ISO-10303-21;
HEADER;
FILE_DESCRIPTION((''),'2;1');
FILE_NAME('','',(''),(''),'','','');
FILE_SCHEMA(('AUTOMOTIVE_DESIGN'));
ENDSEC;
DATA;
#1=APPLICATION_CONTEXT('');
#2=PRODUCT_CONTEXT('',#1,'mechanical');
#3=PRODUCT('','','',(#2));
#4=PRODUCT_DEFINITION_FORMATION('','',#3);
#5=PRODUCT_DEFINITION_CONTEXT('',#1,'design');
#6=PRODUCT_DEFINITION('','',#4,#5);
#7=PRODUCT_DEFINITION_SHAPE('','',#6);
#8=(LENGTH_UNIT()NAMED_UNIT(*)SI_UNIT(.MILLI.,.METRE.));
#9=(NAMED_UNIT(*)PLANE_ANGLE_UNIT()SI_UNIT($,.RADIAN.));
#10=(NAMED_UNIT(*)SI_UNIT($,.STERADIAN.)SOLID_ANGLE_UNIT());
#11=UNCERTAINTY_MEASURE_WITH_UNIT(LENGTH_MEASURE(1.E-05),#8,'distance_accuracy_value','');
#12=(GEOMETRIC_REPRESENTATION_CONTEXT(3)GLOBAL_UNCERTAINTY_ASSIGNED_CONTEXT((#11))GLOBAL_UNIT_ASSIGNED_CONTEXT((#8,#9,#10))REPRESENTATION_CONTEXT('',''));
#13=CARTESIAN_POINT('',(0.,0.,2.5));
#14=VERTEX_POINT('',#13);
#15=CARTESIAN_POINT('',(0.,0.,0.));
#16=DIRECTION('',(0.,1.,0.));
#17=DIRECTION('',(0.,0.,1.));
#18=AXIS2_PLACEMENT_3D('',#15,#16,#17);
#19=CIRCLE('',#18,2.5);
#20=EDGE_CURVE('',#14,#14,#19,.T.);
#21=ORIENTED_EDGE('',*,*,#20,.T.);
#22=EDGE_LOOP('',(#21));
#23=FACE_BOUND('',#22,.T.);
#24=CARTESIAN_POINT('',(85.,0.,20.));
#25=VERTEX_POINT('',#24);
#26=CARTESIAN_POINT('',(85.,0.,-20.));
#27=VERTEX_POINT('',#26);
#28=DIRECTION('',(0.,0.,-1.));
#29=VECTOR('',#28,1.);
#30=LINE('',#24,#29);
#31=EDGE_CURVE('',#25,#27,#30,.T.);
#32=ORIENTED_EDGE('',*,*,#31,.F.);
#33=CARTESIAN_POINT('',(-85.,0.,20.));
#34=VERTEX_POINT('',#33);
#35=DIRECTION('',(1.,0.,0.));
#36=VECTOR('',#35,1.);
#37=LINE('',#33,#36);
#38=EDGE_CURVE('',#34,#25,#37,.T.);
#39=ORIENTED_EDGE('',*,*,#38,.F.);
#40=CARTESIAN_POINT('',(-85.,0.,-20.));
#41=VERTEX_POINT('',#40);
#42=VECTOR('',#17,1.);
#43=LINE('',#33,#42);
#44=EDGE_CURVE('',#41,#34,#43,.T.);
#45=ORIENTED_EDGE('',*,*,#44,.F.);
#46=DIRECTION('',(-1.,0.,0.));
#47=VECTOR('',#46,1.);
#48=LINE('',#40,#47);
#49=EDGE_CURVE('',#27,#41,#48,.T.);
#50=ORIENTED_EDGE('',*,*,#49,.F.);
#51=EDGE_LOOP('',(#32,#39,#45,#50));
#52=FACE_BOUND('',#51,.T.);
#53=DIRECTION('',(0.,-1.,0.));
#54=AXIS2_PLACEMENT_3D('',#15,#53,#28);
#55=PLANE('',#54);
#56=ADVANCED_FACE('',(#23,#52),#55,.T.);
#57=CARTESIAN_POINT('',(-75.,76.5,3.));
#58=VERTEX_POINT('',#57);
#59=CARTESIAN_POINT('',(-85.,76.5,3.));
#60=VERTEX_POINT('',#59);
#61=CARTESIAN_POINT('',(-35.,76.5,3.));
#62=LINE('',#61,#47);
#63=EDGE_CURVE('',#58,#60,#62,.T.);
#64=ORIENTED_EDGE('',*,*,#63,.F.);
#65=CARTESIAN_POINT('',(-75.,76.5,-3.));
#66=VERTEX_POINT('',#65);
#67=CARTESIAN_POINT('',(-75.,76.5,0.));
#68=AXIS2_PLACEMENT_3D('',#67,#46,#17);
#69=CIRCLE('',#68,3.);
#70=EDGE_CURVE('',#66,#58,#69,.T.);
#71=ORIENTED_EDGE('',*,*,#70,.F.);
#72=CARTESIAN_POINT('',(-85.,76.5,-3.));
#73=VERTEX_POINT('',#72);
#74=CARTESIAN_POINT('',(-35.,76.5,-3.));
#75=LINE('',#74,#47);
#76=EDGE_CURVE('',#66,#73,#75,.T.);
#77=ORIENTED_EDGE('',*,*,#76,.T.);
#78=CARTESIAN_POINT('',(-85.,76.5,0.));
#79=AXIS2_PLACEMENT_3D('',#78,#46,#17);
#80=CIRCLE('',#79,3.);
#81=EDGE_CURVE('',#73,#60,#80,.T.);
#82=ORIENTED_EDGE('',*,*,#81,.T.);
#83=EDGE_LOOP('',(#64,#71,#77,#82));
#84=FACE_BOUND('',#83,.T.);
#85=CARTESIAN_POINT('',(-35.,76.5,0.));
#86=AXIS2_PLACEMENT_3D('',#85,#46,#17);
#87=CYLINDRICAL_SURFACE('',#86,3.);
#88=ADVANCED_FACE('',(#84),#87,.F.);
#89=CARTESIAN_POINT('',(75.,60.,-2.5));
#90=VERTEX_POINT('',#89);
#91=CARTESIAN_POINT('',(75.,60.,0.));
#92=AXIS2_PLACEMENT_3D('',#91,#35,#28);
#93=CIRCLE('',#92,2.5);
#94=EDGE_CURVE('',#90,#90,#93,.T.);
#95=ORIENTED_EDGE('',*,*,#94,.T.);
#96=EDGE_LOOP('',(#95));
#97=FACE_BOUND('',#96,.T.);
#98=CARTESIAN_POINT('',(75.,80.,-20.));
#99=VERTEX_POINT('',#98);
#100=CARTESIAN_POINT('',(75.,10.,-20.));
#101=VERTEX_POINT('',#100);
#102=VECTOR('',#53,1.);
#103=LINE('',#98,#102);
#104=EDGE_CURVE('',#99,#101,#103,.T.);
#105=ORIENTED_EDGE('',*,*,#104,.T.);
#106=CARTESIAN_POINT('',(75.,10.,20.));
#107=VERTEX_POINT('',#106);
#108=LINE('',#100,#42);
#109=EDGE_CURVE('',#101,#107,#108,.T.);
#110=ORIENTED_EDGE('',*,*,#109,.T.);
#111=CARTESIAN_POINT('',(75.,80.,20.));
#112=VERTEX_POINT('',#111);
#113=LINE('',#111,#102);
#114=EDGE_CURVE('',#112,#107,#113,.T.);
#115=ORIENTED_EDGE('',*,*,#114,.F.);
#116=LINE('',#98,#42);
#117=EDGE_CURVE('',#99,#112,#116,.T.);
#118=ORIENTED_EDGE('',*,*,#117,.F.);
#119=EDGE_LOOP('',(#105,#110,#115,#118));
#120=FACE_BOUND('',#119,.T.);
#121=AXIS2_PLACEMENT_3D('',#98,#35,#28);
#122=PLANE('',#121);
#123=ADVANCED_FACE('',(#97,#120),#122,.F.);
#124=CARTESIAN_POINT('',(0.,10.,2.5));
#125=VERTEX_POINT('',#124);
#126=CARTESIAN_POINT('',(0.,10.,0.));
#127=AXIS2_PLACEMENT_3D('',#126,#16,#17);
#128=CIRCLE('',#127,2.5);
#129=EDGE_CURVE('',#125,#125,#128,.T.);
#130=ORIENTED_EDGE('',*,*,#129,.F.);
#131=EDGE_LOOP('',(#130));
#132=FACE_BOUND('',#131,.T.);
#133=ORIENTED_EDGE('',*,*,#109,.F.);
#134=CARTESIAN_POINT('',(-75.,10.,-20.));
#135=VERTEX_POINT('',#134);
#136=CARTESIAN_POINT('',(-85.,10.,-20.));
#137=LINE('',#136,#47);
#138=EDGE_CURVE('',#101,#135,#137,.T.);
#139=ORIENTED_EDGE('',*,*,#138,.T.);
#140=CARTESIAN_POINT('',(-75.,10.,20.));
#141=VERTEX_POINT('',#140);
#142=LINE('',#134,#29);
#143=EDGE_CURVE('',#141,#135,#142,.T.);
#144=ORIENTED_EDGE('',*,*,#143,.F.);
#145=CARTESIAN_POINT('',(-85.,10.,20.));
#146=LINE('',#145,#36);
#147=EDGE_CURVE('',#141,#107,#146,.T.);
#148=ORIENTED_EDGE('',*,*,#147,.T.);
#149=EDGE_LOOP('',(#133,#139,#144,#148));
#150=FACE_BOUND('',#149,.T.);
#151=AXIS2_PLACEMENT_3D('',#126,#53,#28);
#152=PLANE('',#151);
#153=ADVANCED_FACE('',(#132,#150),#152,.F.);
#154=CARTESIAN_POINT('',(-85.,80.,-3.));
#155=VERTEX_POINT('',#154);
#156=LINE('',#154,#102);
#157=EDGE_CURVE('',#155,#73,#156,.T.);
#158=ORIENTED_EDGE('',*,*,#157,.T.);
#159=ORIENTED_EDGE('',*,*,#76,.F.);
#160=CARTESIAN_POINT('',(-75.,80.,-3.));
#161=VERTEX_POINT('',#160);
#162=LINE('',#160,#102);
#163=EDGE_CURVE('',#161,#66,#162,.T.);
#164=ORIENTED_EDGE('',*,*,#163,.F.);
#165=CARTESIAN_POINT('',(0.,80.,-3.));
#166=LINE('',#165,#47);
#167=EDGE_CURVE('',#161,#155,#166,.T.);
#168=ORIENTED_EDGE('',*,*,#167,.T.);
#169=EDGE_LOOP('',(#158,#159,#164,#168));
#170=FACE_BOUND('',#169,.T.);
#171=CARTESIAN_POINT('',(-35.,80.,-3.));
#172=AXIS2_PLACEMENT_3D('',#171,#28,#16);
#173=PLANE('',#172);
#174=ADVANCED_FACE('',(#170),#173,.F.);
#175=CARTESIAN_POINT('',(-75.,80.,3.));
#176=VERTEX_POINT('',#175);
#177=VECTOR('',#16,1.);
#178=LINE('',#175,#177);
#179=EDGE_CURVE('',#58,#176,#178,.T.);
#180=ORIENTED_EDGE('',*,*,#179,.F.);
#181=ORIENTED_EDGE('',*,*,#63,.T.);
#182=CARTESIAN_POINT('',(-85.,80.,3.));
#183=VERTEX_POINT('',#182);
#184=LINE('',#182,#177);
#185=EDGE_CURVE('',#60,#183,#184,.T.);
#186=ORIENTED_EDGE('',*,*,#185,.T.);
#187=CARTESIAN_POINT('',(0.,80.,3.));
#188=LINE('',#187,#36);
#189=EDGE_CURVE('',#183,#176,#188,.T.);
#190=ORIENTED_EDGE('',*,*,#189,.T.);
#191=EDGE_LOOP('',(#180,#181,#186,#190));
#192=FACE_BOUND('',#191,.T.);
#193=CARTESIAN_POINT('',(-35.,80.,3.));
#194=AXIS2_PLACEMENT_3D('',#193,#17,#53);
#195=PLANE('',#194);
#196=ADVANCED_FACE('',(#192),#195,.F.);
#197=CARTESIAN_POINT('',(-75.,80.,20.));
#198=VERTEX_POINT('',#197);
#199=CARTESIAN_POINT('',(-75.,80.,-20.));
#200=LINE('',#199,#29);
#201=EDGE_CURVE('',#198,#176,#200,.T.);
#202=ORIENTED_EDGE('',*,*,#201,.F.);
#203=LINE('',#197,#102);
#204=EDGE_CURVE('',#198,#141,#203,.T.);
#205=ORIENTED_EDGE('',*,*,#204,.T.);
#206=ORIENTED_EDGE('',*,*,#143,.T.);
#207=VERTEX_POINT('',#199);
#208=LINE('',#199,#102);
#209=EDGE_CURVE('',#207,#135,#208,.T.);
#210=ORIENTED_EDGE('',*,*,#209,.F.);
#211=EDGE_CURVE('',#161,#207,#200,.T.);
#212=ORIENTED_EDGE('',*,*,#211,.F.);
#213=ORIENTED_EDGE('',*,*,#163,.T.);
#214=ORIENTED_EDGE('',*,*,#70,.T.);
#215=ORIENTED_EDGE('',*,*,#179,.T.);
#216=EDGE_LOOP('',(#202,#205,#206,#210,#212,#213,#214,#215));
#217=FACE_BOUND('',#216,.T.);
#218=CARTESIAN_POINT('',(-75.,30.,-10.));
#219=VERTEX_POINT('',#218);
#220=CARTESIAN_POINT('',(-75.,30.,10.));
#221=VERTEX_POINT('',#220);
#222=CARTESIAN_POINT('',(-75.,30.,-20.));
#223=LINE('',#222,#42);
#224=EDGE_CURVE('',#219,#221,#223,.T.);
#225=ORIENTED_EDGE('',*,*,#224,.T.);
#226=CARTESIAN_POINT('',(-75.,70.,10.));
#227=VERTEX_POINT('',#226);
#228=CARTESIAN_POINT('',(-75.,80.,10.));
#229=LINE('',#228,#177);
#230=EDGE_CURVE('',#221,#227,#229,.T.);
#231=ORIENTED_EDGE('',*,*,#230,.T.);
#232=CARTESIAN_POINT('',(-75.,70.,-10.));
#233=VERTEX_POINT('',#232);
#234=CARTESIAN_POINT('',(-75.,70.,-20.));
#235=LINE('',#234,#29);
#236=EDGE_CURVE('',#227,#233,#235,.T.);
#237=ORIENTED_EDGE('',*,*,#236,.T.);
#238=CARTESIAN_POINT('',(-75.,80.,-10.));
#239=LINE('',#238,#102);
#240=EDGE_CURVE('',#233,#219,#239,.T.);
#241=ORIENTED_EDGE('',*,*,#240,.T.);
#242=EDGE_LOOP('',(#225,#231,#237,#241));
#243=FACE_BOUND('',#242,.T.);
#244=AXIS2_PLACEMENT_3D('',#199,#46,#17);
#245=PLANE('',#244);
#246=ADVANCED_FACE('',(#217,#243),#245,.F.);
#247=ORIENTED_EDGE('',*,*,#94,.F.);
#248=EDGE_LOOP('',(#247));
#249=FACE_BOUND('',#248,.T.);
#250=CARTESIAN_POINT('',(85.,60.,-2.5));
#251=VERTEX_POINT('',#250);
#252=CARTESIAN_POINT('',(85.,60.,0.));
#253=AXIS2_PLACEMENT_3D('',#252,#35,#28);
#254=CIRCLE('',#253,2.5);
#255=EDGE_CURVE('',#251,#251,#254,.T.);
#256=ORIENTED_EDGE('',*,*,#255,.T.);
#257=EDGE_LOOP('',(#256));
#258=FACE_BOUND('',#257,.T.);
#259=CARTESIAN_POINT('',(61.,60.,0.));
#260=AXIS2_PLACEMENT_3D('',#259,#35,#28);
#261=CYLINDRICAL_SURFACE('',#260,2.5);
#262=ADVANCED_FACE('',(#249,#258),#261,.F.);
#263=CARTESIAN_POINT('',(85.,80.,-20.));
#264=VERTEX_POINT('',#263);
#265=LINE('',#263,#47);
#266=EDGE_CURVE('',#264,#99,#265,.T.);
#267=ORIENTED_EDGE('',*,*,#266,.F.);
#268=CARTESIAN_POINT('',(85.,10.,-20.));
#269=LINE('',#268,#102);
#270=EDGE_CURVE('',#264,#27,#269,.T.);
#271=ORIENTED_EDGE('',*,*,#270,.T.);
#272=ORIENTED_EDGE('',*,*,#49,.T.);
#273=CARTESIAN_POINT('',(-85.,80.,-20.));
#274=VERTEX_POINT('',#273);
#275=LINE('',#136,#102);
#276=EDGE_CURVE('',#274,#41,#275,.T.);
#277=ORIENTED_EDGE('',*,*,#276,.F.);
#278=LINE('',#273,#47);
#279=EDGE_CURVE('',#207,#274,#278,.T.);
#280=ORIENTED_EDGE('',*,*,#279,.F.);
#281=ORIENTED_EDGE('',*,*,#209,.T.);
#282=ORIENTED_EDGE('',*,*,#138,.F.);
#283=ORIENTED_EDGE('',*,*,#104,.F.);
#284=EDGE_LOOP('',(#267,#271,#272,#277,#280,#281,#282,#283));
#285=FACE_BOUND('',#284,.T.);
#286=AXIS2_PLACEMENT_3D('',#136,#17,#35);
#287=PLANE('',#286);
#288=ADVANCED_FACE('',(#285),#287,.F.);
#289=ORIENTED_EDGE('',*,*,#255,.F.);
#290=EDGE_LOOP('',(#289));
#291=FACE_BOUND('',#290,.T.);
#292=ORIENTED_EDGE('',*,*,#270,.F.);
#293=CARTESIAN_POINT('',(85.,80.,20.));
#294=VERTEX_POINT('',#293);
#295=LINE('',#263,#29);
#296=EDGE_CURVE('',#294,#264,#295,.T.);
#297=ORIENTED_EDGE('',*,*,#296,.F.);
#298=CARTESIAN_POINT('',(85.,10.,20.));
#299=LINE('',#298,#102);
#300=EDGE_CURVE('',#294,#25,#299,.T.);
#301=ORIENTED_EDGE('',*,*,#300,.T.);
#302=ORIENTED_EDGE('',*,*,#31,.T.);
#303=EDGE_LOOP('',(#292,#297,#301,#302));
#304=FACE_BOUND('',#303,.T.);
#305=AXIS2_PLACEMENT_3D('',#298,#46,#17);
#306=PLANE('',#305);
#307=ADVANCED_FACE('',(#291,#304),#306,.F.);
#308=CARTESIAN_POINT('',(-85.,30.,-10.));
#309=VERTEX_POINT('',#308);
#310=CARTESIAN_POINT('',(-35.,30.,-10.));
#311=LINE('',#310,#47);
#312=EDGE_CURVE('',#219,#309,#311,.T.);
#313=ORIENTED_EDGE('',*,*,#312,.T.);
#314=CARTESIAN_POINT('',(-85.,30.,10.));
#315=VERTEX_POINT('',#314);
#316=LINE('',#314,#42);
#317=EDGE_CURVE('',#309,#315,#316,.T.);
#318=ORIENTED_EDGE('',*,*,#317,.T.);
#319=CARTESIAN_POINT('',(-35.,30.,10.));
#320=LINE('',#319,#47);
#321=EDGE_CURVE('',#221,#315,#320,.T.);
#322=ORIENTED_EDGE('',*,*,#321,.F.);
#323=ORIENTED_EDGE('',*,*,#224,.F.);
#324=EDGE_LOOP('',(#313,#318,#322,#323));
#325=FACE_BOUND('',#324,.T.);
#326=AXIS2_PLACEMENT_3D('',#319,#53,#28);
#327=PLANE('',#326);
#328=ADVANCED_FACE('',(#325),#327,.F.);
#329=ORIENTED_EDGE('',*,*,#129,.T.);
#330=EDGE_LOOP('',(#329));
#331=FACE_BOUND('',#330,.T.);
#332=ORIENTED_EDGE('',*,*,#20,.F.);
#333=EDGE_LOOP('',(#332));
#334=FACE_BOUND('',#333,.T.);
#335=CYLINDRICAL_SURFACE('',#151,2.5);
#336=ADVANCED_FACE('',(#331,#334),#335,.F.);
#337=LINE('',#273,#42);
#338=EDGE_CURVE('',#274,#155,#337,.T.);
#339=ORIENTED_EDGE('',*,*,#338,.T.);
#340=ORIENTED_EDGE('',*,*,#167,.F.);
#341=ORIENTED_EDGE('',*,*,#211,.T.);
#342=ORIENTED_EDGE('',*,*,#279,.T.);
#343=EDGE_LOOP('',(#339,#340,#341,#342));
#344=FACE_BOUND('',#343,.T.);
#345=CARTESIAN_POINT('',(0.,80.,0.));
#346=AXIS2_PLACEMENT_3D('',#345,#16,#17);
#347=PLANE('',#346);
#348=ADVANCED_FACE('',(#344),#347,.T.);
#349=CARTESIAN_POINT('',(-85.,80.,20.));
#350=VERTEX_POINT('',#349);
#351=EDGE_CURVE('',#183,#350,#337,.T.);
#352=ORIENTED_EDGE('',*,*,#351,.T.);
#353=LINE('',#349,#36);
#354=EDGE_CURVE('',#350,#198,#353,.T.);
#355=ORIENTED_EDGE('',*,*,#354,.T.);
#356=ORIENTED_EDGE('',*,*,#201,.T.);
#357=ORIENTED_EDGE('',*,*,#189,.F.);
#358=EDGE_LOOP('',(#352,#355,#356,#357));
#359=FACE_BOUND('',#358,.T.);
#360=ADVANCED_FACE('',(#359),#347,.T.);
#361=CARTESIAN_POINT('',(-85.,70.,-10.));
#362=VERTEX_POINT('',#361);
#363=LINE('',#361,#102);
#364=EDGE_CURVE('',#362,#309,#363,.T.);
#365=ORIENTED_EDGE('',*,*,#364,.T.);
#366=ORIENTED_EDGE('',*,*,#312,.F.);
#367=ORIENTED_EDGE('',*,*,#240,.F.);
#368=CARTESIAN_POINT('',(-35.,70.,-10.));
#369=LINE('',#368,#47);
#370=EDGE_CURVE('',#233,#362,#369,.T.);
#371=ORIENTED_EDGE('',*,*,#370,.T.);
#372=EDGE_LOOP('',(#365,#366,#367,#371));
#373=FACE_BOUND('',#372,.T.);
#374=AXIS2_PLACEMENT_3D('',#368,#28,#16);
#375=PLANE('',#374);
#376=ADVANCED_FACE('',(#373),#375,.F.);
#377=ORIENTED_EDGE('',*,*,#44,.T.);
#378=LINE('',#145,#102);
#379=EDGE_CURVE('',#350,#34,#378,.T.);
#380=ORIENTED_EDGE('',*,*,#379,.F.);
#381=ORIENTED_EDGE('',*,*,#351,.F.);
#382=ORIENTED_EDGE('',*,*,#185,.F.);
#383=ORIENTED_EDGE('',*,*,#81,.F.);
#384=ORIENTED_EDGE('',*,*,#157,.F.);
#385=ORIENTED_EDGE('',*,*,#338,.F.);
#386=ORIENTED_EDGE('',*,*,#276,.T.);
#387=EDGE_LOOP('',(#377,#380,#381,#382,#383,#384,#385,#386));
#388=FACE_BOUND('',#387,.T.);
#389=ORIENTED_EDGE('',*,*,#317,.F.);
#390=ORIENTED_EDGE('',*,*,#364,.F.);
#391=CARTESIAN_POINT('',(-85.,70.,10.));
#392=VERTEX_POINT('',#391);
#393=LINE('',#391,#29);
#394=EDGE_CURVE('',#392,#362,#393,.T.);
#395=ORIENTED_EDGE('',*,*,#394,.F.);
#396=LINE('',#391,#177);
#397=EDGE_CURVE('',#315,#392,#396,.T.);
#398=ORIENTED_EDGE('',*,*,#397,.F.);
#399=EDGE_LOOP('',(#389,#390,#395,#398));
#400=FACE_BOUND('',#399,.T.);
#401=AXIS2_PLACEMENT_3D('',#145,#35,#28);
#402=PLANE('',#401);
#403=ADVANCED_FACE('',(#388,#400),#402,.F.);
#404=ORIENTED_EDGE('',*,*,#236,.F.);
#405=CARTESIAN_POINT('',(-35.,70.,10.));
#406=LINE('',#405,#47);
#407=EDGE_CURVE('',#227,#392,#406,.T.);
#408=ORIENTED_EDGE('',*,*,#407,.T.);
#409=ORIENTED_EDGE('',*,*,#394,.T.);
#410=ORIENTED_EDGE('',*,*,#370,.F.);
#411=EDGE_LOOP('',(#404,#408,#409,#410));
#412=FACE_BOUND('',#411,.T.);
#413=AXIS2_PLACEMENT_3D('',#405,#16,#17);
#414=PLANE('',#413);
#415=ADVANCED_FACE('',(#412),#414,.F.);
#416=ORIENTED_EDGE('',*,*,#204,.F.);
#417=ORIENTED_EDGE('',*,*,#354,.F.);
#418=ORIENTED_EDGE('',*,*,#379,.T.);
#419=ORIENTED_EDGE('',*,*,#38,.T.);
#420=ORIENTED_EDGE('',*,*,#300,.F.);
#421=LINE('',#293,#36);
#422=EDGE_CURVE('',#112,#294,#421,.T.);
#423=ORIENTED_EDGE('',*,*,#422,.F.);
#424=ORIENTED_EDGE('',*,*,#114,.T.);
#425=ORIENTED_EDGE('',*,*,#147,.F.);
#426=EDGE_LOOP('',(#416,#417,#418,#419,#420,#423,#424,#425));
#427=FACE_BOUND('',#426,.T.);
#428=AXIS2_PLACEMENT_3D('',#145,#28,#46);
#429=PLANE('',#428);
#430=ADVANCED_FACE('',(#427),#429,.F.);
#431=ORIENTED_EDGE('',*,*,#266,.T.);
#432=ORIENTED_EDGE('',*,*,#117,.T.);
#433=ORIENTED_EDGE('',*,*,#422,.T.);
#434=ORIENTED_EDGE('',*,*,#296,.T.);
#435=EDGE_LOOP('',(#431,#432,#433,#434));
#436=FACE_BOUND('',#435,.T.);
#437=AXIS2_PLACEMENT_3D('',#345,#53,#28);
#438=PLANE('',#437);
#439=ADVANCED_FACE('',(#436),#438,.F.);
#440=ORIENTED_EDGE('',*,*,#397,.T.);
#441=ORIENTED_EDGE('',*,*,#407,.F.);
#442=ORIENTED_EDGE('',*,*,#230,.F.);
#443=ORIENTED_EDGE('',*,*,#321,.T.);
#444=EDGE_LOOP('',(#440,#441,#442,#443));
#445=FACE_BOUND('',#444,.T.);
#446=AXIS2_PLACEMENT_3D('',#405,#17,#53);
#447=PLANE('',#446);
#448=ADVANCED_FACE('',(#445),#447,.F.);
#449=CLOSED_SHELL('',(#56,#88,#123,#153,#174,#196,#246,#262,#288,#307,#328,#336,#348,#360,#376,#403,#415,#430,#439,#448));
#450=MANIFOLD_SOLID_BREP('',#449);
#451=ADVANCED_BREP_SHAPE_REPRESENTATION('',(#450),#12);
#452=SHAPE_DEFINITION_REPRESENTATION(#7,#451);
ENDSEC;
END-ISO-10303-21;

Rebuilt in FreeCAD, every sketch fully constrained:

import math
import FreeCAD as App
import Part
import Sketcher


def add_polygon(sketch, points):
    """Adds a closed chain of lines whose ends are joined by coincident constraints."""
    first, n = sketch.GeometryCount, len(points)
    for a, b in zip(points, points[1:] + points[:1]):
        sketch.addGeometry(Part.LineSegment(App.Vector(*a, 0), App.Vector(*b, 0)), False)
    for i in range(n):
        sketch.addConstraint(Sketcher.Constraint("Coincident", first + i, 2, first + (i + 1) % n, 1))

doc = App.newDocument("Part")
body = doc.addObject("PartDesign::Body", "Body")

# Sketch on XZ plane
sketch1 = body.newObject("Sketcher::SketchObject", "Sketch")
sketch1.AttachmentSupport = (doc.getObject("XZ_Plane"), [""])
sketch1.MapMode = "FlatFace"
add_polygon(sketch1, [(-85, -20), (-85, 20), (85, 20), (85, -20)])  # lines 0-3
sketch1.addGeometry(Part.Circle(App.Vector(0, 0, 0), App.Vector(0, 0, 1), 2.5), False)  # 4
sketch1.addConstraint(Sketcher.Constraint("Vertical", 0))
sketch1.addConstraint(Sketcher.Constraint("Horizontal", 1))
sketch1.addConstraint(Sketcher.Constraint("Vertical", 2))
sketch1.addConstraint(Sketcher.Constraint("Horizontal", 3))
sketch1.addConstraint(Sketcher.Constraint("Coincident", 4, 3, -1, 1))
sketch1.addConstraint(Sketcher.Constraint("Symmetric", 0, 2, 2, 2, -1, 1))
sketch1.addConstraint(Sketcher.Constraint("Diameter", 4, 5.0))
sketch1.addConstraint(Sketcher.Constraint("DistanceX", 1, 1, 1, 2, 170.0))
sketch1.addConstraint(Sketcher.Constraint("DistanceY", 0, 1, 0, 2, 40.0))
pad1 = body.newObject("PartDesign::Pad", "Pad")
pad1.Profile = sketch1
pad1.Length = 10
pad1.Reversed = True

# Sketch on XZ plane
sketch2 = body.newObject("Sketcher::SketchObject", "Sketch001")
sketch2.AttachmentSupport = (doc.getObject("XZ_Plane"), [""])
sketch2.MapMode = "FlatFace"
sketch2.AttachmentOffset = App.Placement(App.Vector(0, 0, -10), App.Rotation())
add_polygon(sketch2, [(75, -20), (75, 20), (85, 20), (85, -20)])  # lines 0-3
add_polygon(sketch2, [(-85, -20), (-85, 20), (-75, 20), (-75, -20)])  # lines 4-7
sketch2.addConstraint(Sketcher.Constraint("Vertical", 0))
sketch2.addConstraint(Sketcher.Constraint("Horizontal", 1))
sketch2.addConstraint(Sketcher.Constraint("Vertical", 2))
sketch2.addConstraint(Sketcher.Constraint("Horizontal", 3))
sketch2.addConstraint(Sketcher.Constraint("Vertical", 4))
sketch2.addConstraint(Sketcher.Constraint("Horizontal", 5))
sketch2.addConstraint(Sketcher.Constraint("Vertical", 6))
sketch2.addConstraint(Sketcher.Constraint("Horizontal", 7))
sketch2.addConstraint(Sketcher.Constraint("Symmetric", 2, 2, 4, 2, -1, 1))
sketch2.addConstraint(Sketcher.Constraint("Symmetric", 0, 2, 6, 2, -1, 1))
sketch2.addConstraint(Sketcher.Constraint("Horizontal", 1, 2, 4, 2))
sketch2.addConstraint(Sketcher.Constraint("DistanceX", 1, 1, 1, 2, 10.0))
sketch2.addConstraint(Sketcher.Constraint("DistanceY", 0, 1, 0, 2, 40.0))
sketch2.addConstraint(Sketcher.Constraint("DistanceX", -1, 1, 0, 2, 75.0))
pad2 = body.newObject("PartDesign::Pad", "Pad001")
pad2.Profile = sketch2
pad2.Length = 70
pad2.Reversed = True

# Sketch on YZ plane
sketch3 = body.newObject("Sketcher::SketchObject", "Sketch002")
sketch3.AttachmentSupport = (doc.getObject("YZ_Plane"), [""])
sketch3.MapMode = "FlatFace"
sketch3.AttachmentOffset = App.Placement(App.Vector(0, 0, -85), App.Rotation())
add_polygon(sketch3, [(70, -10), (30, -10), (30, 10), (70, 10)])  # lines 0-3
sketch3.addGeometry(Part.LineSegment(App.Vector(76.5, 3, 0), App.Vector(80, 3, 0)), False)  # 4
sketch3.addGeometry(Part.ArcOfCircle(Part.Circle(App.Vector(80, 0, 0), App.Vector(0, 0, 1), 3), math.radians(-90), math.radians(90)), False)  # 5
sketch3.addGeometry(Part.LineSegment(App.Vector(80, -3, 0), App.Vector(76.5, -3, 0)), False)  # 6
sketch3.addGeometry(Part.ArcOfCircle(Part.Circle(App.Vector(76.5, 0, 0), App.Vector(0, 0, 1), 3), math.radians(90), math.radians(270)), False)  # 7
sketch3.addConstraint(Sketcher.Constraint("Tangent", 4, 2, 5, 2))
sketch3.addConstraint(Sketcher.Constraint("Tangent", 5, 1, 6, 1))
sketch3.addConstraint(Sketcher.Constraint("Tangent", 6, 2, 7, 2))
sketch3.addConstraint(Sketcher.Constraint("Tangent", 7, 1, 4, 1))
sketch3.addConstraint(Sketcher.Constraint("Horizontal", 0))
sketch3.addConstraint(Sketcher.Constraint("Vertical", 1))
sketch3.addConstraint(Sketcher.Constraint("Horizontal", 2))
sketch3.addConstraint(Sketcher.Constraint("Vertical", 3))
sketch3.addConstraint(Sketcher.Constraint("Horizontal", 4))
sketch3.addConstraint(Sketcher.Constraint("Horizontal", 6))
sketch3.addConstraint(Sketcher.Constraint("PointOnObject", 5, 3, -1))
sketch3.addConstraint(Sketcher.Constraint("Radius", 5, 3.0))
sketch3.addConstraint(Sketcher.Constraint("DistanceX", 0, 2, 0, 1, 40.0))
sketch3.addConstraint(Sketcher.Constraint("DistanceY", 1, 1, 1, 2, 20.0))
sketch3.addConstraint(Sketcher.Constraint("DistanceX", 4, 1, 4, 2, 3.5))
sketch3.addConstraint(Sketcher.Constraint("DistanceX", -1, 1, 5, 3, 80.0))
sketch3.addConstraint(Sketcher.Constraint("DistanceX", -1, 1, 0, 2, 30.0))
sketch3.addConstraint(Sketcher.Constraint("DistanceY", 0, 2, -1, 1, 10.0))
pocket1 = body.newObject("PartDesign::Pocket", "Pocket")
pocket1.Profile = sketch3
pocket1.Length = 50
pocket1.Reversed = True

# Sketch on YZ plane
sketch4 = body.newObject("Sketcher::SketchObject", "Sketch003")
sketch4.AttachmentSupport = (doc.getObject("YZ_Plane"), [""])
sketch4.MapMode = "FlatFace"
sketch4.AttachmentOffset = App.Placement(App.Vector(0, 0, 85), App.Rotation())
sketch4.addGeometry(Part.Circle(App.Vector(60, 0, 0), App.Vector(0, 0, 1), 2.5), False)
sketch4.addConstraint(Sketcher.Constraint("PointOnObject", 0, 3, -1))
sketch4.addConstraint(Sketcher.Constraint("Diameter", 0, 5.0))
sketch4.addConstraint(Sketcher.Constraint("DistanceX", -1, 1, 0, 3, 60.0))
pocket2 = body.newObject("PartDesign::Pocket", "Pocket001")
pocket2.Profile = sketch4
pocket2.Length = 24

doc.recompute()
